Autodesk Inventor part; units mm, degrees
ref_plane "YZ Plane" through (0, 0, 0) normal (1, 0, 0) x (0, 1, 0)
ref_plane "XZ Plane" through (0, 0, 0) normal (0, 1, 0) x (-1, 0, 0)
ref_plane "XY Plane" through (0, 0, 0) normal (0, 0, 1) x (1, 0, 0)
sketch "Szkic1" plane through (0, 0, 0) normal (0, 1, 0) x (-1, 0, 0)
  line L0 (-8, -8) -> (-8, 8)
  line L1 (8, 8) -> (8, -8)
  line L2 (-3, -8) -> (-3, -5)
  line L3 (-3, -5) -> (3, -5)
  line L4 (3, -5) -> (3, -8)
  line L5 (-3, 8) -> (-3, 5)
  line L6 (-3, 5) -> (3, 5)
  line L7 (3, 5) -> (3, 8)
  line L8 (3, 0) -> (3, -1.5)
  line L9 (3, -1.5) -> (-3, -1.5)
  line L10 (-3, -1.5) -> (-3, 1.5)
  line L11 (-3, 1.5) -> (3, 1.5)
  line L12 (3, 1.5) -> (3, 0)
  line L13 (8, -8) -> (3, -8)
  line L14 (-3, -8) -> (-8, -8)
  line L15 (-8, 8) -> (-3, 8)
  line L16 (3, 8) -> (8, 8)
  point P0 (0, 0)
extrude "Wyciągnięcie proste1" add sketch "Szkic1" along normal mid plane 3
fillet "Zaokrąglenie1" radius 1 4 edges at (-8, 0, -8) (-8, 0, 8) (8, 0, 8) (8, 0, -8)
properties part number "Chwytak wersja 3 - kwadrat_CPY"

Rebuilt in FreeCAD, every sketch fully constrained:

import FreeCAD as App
import Part
import Sketcher


def edges_at(feature, points):
    """Names of the edges that pass closest to the given points."""
    edges = feature.Shape.Edges
    near = lambda p: min(range(len(edges)), key=lambda i: edges[i].distToShape(Part.Vertex(*p))[0])
    return sorted({f"Edge{near(p) + 1}" for p in points})

doc = App.newDocument("Part")
body = doc.addObject("PartDesign::Body", "Body")

# Sketch on XZ plane
sketch1 = body.newObject("Sketcher::SketchObject", "Sketch")
sketch1.AttachmentSupport = (doc.getObject("XZ_Plane"), [""])
sketch1.MapMode = "FlatFace"
sketch1.addGeometry([
    Part.LineSegment(App.Vector(8, 8, 0), App.Vector(8, -8, 0)),  # 0
    Part.LineSegment(App.Vector(8, -8, 0), App.Vector(3, -8, 0)),  # 1
    Part.LineSegment(App.Vector(3, -8, 0), App.Vector(3, -5, 0)),  # 2
    Part.LineSegment(App.Vector(3, -5, 0), App.Vector(-3, -5, 0)),  # 3
    Part.LineSegment(App.Vector(-3, -5, 0), App.Vector(-3, -8, 0)),  # 4
    Part.LineSegment(App.Vector(-3, -8, 0), App.Vector(-8, -8, 0)),  # 5
    Part.LineSegment(App.Vector(-8, -8, 0), App.Vector(-8, 8, 0)),  # 6
    Part.LineSegment(App.Vector(-8, 8, 0), App.Vector(-3, 8, 0)),  # 7
    Part.LineSegment(App.Vector(-3, 8, 0), App.Vector(-3, 5, 0)),  # 8
    Part.LineSegment(App.Vector(-3, 5, 0), App.Vector(3, 5, 0)),  # 9
    Part.LineSegment(App.Vector(3, 5, 0), App.Vector(3, 8, 0)),  # 10
    Part.LineSegment(App.Vector(3, 8, 0), App.Vector(8, 8, 0)),  # 11
    Part.LineSegment(App.Vector(-3, 1.5, 0), App.Vector(-3, -1.5, 0)),  # 12
    Part.LineSegment(App.Vector(-3, -1.5, 0), App.Vector(3, -1.5, 0)),  # 13
    Part.LineSegment(App.Vector(3, -1.5, 0), App.Vector(3, 1.5, 0)),  # 14
    Part.LineSegment(App.Vector(3, 1.5, 0), App.Vector(-3, 1.5, 0)),  # 15
], False)
sketch1.addConstraint([
    Sketcher.Constraint("Coincident", 0, 2, 1, 1),
    Sketcher.Constraint("Coincident", 1, 2, 2, 1),
    Sketcher.Constraint("Coincident", 2, 2, 3, 1),
    Sketcher.Constraint("Coincident", 3, 2, 4, 1),
    Sketcher.Constraint("Coincident", 4, 2, 5, 1),
    Sketcher.Constraint("Coincident", 5, 2, 6, 1),
    Sketcher.Constraint("Coincident", 6, 2, 7, 1),
    Sketcher.Constraint("Coincident", 7, 2, 8, 1),
    Sketcher.Constraint("Coincident", 8, 2, 9, 1),
    Sketcher.Constraint("Coincident", 9, 2, 10, 1),
    Sketcher.Constraint("Coincident", 10, 2, 11, 1),
    Sketcher.Constraint("Coincident", 11, 2, 0, 1),
    Sketcher.Constraint("Coincident", 12, 2, 13, 1),
    Sketcher.Constraint("Coincident", 13, 2, 14, 1),
    Sketcher.Constraint("Coincident", 14, 2, 15, 1),
    Sketcher.Constraint("Coincident", 15, 2, 12, 1),
    Sketcher.Constraint("Vertical", 0),
    Sketcher.Constraint("Horizontal", 1),
    Sketcher.Constraint("Vertical", 2),
    Sketcher.Constraint("Horizontal", 3),
    Sketcher.Constraint("Vertical", 4),
    Sketcher.Constraint("Horizontal", 5),
    Sketcher.Constraint("Vertical", 6),
    Sketcher.Constraint("Horizontal", 7),
    Sketcher.Constraint("Vertical", 8),
    Sketcher.Constraint("Horizontal", 9),
    Sketcher.Constraint("Vertical", 10),
    Sketcher.Constraint("Horizontal", 11),
    Sketcher.Constraint("Vertical", 12),
    Sketcher.Constraint("Horizontal", 13),
    Sketcher.Constraint("Vertical", 14),
    Sketcher.Constraint("Horizontal", 15),
    Sketcher.Constraint("Symmetric", 0, 2, 6, 2, -1, 1),
    Sketcher.Constraint("Symmetric", 2, 2, 8, 2, -1, 1),
    Sketcher.Constraint("Symmetric", 4, 2, 10, 2, -1, 1),
    Sketcher.Constraint("Symmetric", 12, 2, 14, 2, -1, 1),
    Sketcher.Constraint("Symmetric", 1, 2, 4, 2, -2),
    Sketcher.Constraint("Vertical", 8, 2, 12, 2),
    Sketcher.Constraint("Equal", 10, 12),
    Sketcher.Constraint("DistanceX", 1, 2, 1, 1, 5.0),
    Sketcher.Constraint("DistanceX", 3, 2, 3, 1, 6.0),
    Sketcher.Constraint("DistanceY", 0, 2, 0, 1, 16.0),
    Sketcher.Constraint("DistanceY", 2, 1, 2, 2, 3.0),
])
pad1 = body.newObject("PartDesign::Pad", "Pad")
pad1.Profile = sketch1
pad1.Length = 3
pad1.Midplane = True
doc.recompute()

fillet = body.newObject("PartDesign::Fillet", "Fillet")
fillet.Base = (pad1, edges_at(pad1, [
    (-8, 0, -8),
    (-8, 0, 8),
    (8, 0, 8),
    (8, 0, -8),
]))
fillet.Radius = 1

doc.recompute()
